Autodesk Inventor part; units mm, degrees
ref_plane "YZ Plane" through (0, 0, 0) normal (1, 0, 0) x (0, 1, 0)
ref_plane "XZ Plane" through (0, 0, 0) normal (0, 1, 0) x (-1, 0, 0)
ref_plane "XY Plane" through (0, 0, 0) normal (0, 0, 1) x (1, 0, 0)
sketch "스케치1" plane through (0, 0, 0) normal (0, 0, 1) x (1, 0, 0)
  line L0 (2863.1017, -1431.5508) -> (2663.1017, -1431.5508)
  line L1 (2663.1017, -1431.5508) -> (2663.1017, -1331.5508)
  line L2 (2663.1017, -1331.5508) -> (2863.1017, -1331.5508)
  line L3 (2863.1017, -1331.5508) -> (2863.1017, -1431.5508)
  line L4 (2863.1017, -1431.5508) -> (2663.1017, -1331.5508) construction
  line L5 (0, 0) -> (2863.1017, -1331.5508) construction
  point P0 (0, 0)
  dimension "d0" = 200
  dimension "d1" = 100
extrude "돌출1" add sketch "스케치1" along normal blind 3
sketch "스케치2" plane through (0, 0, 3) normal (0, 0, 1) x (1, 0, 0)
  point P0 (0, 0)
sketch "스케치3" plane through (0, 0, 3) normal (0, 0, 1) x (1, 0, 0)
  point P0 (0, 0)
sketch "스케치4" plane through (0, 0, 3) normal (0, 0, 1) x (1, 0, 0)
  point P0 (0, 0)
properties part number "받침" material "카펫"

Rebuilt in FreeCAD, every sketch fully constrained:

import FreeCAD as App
import Part
import Sketcher


def add_polygon(sketch, points):
    """Adds a closed chain of lines whose ends are joined by coincident constraints."""
    first, n = sketch.GeometryCount, len(points)
    for a, b in zip(points, points[1:] + points[:1]):
        sketch.addGeometry(Part.LineSegment(App.Vector(*a, 0), App.Vector(*b, 0)), False)
    for i in range(n):
        sketch.addConstraint(Sketcher.Constraint("Coincident", first + i, 2, first + (i + 1) % n, 1))

doc = App.newDocument("Part")
body = doc.addObject("PartDesign::Body", "Body")

sketch1 = body.newObject("Sketcher::SketchObject", "Sketch")
sketch1.AttachmentSupport = (doc.getObject("XY_Plane"), [""])
sketch1.MapMode = "FlatFace"
add_polygon(sketch1, [(2663.1017, -1431.5508), (2863.1017, -1431.5508), (2863.1017, -1331.5508), (2663.1017, -1331.5508)])
sketch1.addConstraint(Sketcher.Constraint("Horizontal", 0))
sketch1.addConstraint(Sketcher.Constraint("Vertical", 1))
sketch1.addConstraint(Sketcher.Constraint("Horizontal", 2))
sketch1.addConstraint(Sketcher.Constraint("Vertical", 3))
sketch1.addConstraint(Sketcher.Constraint("DistanceX", 0, 1, 0, 2, 200.0))
sketch1.addConstraint(Sketcher.Constraint("DistanceY", 1, 1, 1, 2, 100.0))
sketch1.addConstraint(Sketcher.Constraint("DistanceX", -1, 1, 0, 2, 2863.1017))
sketch1.addConstraint(Sketcher.Constraint("DistanceY", 0, 2, -1, 1, 1431.5508))
pad1 = body.newObject("PartDesign::Pad", "Pad")
pad1.Profile = sketch1
pad1.Length = 3

doc.recompute()
